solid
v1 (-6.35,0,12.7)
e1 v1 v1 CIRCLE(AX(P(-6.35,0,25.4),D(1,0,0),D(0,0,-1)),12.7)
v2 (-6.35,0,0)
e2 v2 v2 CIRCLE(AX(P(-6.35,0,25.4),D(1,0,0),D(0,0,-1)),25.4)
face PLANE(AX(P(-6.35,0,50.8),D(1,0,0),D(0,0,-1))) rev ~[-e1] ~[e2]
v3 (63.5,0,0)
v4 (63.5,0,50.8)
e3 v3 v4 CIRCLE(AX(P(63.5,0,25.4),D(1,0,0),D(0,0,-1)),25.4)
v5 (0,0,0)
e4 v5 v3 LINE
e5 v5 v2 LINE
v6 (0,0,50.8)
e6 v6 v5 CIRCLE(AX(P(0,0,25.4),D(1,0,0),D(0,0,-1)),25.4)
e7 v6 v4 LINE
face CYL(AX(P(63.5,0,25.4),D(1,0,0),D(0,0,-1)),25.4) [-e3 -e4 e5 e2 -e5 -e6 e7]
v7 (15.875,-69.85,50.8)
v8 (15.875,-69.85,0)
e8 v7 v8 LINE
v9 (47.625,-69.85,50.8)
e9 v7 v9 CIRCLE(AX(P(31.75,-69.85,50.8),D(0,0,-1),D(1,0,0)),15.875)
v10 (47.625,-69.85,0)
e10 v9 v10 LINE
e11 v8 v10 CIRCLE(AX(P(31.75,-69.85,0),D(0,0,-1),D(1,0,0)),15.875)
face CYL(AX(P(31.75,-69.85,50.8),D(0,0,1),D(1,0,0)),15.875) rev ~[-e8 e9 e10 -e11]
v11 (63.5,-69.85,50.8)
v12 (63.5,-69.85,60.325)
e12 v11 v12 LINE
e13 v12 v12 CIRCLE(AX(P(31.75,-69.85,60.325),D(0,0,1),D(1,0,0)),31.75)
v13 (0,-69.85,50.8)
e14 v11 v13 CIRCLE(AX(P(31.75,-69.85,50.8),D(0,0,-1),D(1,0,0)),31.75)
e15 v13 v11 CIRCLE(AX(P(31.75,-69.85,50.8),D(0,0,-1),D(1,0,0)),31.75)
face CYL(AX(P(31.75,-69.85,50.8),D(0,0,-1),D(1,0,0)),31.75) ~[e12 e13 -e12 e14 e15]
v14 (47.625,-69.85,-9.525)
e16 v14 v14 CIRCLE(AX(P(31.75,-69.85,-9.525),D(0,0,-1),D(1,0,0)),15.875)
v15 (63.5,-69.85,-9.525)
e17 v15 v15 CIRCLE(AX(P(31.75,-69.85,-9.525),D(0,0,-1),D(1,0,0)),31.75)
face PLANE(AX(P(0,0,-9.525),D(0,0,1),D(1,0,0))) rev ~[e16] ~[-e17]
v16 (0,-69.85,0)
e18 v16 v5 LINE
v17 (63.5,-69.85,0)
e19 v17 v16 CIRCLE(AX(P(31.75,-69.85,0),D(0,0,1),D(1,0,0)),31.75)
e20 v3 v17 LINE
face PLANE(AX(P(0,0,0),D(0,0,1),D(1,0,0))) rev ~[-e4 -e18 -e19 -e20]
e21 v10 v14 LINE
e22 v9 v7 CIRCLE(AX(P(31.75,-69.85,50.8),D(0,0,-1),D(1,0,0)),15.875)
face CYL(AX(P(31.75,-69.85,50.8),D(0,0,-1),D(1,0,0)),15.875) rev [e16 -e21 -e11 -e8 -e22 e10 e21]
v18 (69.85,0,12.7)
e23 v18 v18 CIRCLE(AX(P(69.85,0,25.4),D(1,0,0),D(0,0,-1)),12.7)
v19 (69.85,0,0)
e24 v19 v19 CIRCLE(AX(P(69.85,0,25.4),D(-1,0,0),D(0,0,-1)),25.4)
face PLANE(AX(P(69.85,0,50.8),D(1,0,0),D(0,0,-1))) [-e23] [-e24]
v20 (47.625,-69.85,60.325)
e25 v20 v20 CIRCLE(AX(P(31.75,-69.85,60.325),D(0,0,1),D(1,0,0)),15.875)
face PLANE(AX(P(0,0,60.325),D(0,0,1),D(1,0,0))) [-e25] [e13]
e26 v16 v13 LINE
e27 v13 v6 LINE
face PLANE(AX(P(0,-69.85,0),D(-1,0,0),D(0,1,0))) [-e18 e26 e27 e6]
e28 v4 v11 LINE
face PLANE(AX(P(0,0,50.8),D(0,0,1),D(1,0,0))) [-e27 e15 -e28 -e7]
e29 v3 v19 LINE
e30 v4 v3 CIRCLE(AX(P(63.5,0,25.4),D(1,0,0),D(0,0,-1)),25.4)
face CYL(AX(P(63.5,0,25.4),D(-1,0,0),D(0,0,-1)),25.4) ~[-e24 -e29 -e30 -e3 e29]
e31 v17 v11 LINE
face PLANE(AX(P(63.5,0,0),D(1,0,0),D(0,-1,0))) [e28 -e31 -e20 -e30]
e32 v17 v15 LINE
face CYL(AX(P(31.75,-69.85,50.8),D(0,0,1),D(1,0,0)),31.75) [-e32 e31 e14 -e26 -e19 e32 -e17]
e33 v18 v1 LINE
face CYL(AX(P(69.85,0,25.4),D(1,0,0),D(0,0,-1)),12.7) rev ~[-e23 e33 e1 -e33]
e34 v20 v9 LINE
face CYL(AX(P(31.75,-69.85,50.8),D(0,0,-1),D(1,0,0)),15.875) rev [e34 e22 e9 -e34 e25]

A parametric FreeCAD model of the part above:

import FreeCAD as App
import Part
import Sketcher
Q = App.Units.Quantity

doc = App.newDocument("Part")
params = doc.addObject("Spreadsheet::Sheet", "Params")
for row, (alias, value) in enumerate([
    ("sketch1_width", "2.5 in"),
    ("sketch1_height", "2.75 in"),
    ("pad1_length", "2 in"),
    ("sketch2_diameter", "2.5 in"),
    ("sketch2_diameter2", "1.25 in"),
    ("pad2_length", "0.375 in"),
    ("pad2_length2", "2.375 in"),
    ("sketch3_diameter", "1.25 in"),
    ("sketch4_diameter", "2 in"),
    ("pad3_length", "0.25 in"),
    ("pad3_length2", "2.75 in"),
    ("sketch5_diameter", "1 in"),
], start=1):
    params.set(f"A{row}", alias)
    params.set(f"B{row}", "=" + value)
    params.setAlias(f"B{row}", alias)

body = doc.addObject("PartDesign::Body", "Body")

# Sketch on XY plane
sketch1 = body.newObject("Sketcher::SketchObject", "Sketch")
sketch1.AttachmentSupport = (doc.getObject("XY_Plane"), [""])
sketch1.MapMode = "FlatFace"
sketch1.addGeometry([
    Part.LineSegment(App.Vector(64, 0, 0), App.Vector(0, 0, 0)),
    Part.LineSegment(App.Vector(0, 0, 0), App.Vector(0, -70, 0)),
    Part.LineSegment(App.Vector(0, -70, 0), App.Vector(64, -70, 0)),
    Part.LineSegment(App.Vector(64, -70, 0), App.Vector(64, 0, 0)),
], False)
sketch1.addConstraint([
    Sketcher.Constraint("Coincident", 0, 2, 1, 1),
    Sketcher.Constraint("Coincident", 1, 2, 2, 1),
    Sketcher.Constraint("Coincident", 2, 2, 3, 1),
    Sketcher.Constraint("Coincident", 3, 2, 0, 1),
    Sketcher.Constraint("Horizontal", 0),
    Sketcher.Constraint("Vertical", 1),
    Sketcher.Constraint("Horizontal", 2),
    Sketcher.Constraint("Vertical", 3),
    Sketcher.Constraint("Coincident", 0, 2, -1, 1),
    Sketcher.Constraint("DistanceX", 0, 2, 0, 1, Q("2.5 in")),
    Sketcher.Constraint("DistanceY", 1, 2, 1, 1, Q("2.75 in")),
])
sketch1.setExpression("Constraints[9]", "Params.sketch1_width")
sketch1.setExpression("Constraints[10]", "Params.sketch1_height")
pad1 = body.newObject("PartDesign::Pad", "Pad")
pad1.Profile = sketch1
pad1.setExpression("Length", "Params.pad1_length")

# Sketch on XY plane
sketch2 = body.newObject("Sketcher::SketchObject", "Sketch001")
sketch2.AttachmentSupport = (doc.getObject("XY_Plane"), [""])
sketch2.MapMode = "FlatFace"
sketch2.AttachmentOffset = App.Placement(App.Vector(0, 0, 2 * 25.4), App.Rotation())
sketch2.addGeometry([
    Part.Circle(App.Vector(32, -70, 0), App.Vector(0, 0, 1), 32),
    Part.Circle(App.Vector(32, -70, 0), App.Vector(0, 0, 1), 16),
], False)
sketch2.addConstraint([
    Sketcher.Constraint("Coincident", 1, 3, 0, 3),
    Sketcher.Constraint("Diameter", 0, Q("2.5 in")),
    Sketcher.Constraint("Diameter", 1, Q("1.25 in")),
    Sketcher.Constraint("DistanceX", -1, 1, 0, 3, Q("1.25 in")),
    Sketcher.Constraint("DistanceY", 0, 3, -1, 1, Q("2.75 in")),
])
sketch2.setExpression("Constraints[1]", "Params.sketch2_diameter")
sketch2.setExpression("Constraints[2]", "Params.sketch2_diameter2")
pad2 = body.newObject("PartDesign::Pad", "Pad001")
pad2.Profile = sketch2
pad2.Type = "TwoLengths"
pad2.setExpression("Length", "Params.pad2_length")
pad2.setExpression("Length2", "Params.pad2_length2")

# Sketch on XY plane
sketch3 = body.newObject("Sketcher::SketchObject", "Sketch002")
sketch3.AttachmentSupport = (doc.getObject("XY_Plane"), [""])
sketch3.MapMode = "FlatFace"
sketch3.AttachmentOffset = App.Placement(App.Vector(0, 0, 2 * 25.4), App.Rotation())
sketch3.addGeometry(Part.Circle(App.Vector(32, -70, 0), App.Vector(0, 0, 1), 16), False)
sketch3.addConstraint([
    Sketcher.Constraint("Diameter", 0, Q("1.25 in")),
    Sketcher.Constraint("DistanceX", -1, 1, 0, 3, Q("1.25 in")),
    Sketcher.Constraint("DistanceY", 0, 3, -1, 1, Q("2.75 in")),
])
sketch3.setExpression("Constraints[0]", "Params.sketch3_diameter")
pocket1 = body.newObject("PartDesign::Pocket", "Pocket")
pocket1.Profile = sketch3
pocket1.Type = "ThroughAll"

# Sketch on YZ plane
sketch4 = body.newObject("Sketcher::SketchObject", "Sketch003")
sketch4.AttachmentSupport = (doc.getObject("YZ_Plane"), [""])
sketch4.MapMode = "FlatFace"
sketch4.AttachmentOffset = App.Placement(App.Vector(0, 0, 2.5 * 25.4), App.Rotation())
sketch4.addGeometry(Part.Circle(App.Vector(0, 25, 0), App.Vector(0, 0, 1), 25), False)
sketch4.addConstraint([
    Sketcher.Constraint("PointOnObject", 0, 3, -2),
    Sketcher.Constraint("Diameter", 0, Q("2 in")),
    Sketcher.Constraint("DistanceY", -1, 1, 0, 3, Q("1 in")),
])
sketch4.setExpression("Constraints[1]", "Params.sketch4_diameter")
pad3 = body.newObject("PartDesign::Pad", "Pad002")
pad3.Profile = sketch4
pad3.Type = "TwoLengths"
pad3.setExpression("Length", "Params.pad3_length")
pad3.setExpression("Length2", "Params.pad3_length2")

# Sketch on YZ plane
sketch5 = body.newObject("Sketcher::SketchObject", "Sketch004")
sketch5.AttachmentSupport = (doc.getObject("YZ_Plane"), [""])
sketch5.MapMode = "FlatFace"
sketch5.AttachmentOffset = App.Placement(App.Vector(0, 0, 2.75 * 25.4), App.Rotation())
sketch5.addGeometry(Part.Circle(App.Vector(0, 25, 0), App.Vector(0, 0, 1), 13), False)
sketch5.addConstraint([
    Sketcher.Constraint("PointOnObject", 0, 3, -2),
    Sketcher.Constraint("Diameter", 0, Q("1 in")),
    Sketcher.Constraint("DistanceY", -1, 1, 0, 3, Q("1 in")),
])
sketch5.setExpression("Constraints[1]", "Params.sketch5_diameter")
pocket2 = body.newObject("PartDesign::Pocket", "Pocket001")
pocket2.Profile = sketch5
pocket2.Type = "ThroughAll"

doc.recompute()
